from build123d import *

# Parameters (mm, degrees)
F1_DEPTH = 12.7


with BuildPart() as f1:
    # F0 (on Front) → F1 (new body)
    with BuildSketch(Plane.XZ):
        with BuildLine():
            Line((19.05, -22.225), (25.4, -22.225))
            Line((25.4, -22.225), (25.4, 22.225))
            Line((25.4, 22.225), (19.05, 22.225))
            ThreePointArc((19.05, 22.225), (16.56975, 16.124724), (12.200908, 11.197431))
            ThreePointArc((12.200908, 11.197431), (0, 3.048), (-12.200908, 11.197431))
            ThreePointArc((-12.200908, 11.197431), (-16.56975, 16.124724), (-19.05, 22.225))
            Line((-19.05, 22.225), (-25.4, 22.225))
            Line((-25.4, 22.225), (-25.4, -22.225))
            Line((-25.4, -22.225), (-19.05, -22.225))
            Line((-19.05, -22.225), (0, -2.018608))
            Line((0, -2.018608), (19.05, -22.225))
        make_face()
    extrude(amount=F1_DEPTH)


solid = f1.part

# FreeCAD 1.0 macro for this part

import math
import FreeCAD as App
import Part
import Sketcher
from FreeCAD import Vector
Q = App.Units.Quantity

doc = App.newDocument("Part")
body = doc.addObject("PartDesign::Body", "Body")

# Sketch on XZ plane
sketch1 = doc.addObject("Sketcher::SketchObject", "Sketch")
body.addObject(sketch1)
sketch1.AttachmentSupport = (doc.XZ_Plane, [""])
sketch1.MapMode = "FlatFace"
sketch1.addGeometry([
    Part.LineSegment(Vector(19.05, -22.225, 0), Vector(25.4, -22.225, 0)),  # 0
    Part.LineSegment(Vector(25.4, -22.225, 0), Vector(25.4, 22.225, 0)),  # 1
    Part.LineSegment(Vector(25.4, 22.225, 0), Vector(19.05, 22.225, 0)),  # 2
    Part.ArcOfCircle(Part.Circle(Vector(-0.000005, 26.416003, 0), Vector(0, 0, 1), 19.505569), math.radians(-51.280426), math.radians(-12.407422)),  # 3
    Part.ArcOfCircle(Part.Circle(Vector(0, 16.256001, 0), Vector(0, 0, 1), 13.208001), math.radians(-157.48081), math.radians(-22.51919)),  # 4
    Part.ArcOfCircle(Part.Circle(Vector(0.000005, 26.416003, 0), Vector(0, 0, 1), 19.505569), math.radians(-167.592578), math.radians(-128.719574)),  # 5
    Part.LineSegment(Vector(-19.05, 22.225, 0), Vector(-25.4, 22.225, 0)),  # 6
    Part.LineSegment(Vector(-25.4, 22.225, 0), Vector(-25.4, -22.225, 0)),  # 7
    Part.LineSegment(Vector(-25.4, -22.225, 0), Vector(-19.05, -22.225, 0)),  # 8
    Part.LineSegment(Vector(-19.05, -22.225, 0), Vector(0, -2.018608, 0)),  # 9
    Part.LineSegment(Vector(0, -2.018608, 0), Vector(19.05, -22.225, 0)),  # 10
], False)
sketch1.addConstraint([
    Sketcher.Constraint("Coincident", 0, 2, 1, 1),
    Sketcher.Constraint("Coincident", 1, 2, 2, 1),
    Sketcher.Constraint("Coincident", 2, 2, 3, 2),
    Sketcher.Constraint("Coincident", 3, 1, 4, 2),
    Sketcher.Constraint("Coincident", 4, 1, 5, 2),
    Sketcher.Constraint("Coincident", 5, 1, 6, 1),
    Sketcher.Constraint("Coincident", 6, 2, 7, 1),
    Sketcher.Constraint("Coincident", 7, 2, 8, 1),
    Sketcher.Constraint("Coincident", 8, 2, 9, 1),
    Sketcher.Constraint("Coincident", 9, 2, 10, 1),
    Sketcher.Constraint("Coincident", 10, 2, 0, 1),
    Sketcher.Constraint("Horizontal", 0),
    Sketcher.Constraint("Vertical", 1),
    Sketcher.Constraint("Horizontal", 2),
    Sketcher.Constraint("Horizontal", 6),
    Sketcher.Constraint("Vertical", 7),
    Sketcher.Constraint("Horizontal", 8),
    Sketcher.Constraint("Equal", 3, 5),
    Sketcher.Constraint("Symmetric", 0, 2, 6, 2, -1, 1),
    Sketcher.Constraint("Symmetric", 2, 2, 8, 2, -1, 1),
    Sketcher.Constraint("Symmetric", 3, 3, 5, 3, -2),
    Sketcher.Constraint("Symmetric", 8, 2, 10, 2, -2),
    Sketcher.Constraint("PointOnObject", 4, 3, -2),
    Sketcher.Constraint("PointOnObject", 9, 2, -2),
    Sketcher.Constraint("Radius", 4, Q("0.52 in")),
    Sketcher.Constraint("DistanceX", -1, 1, 0, 2, Q("1 in")),
    Sketcher.Constraint("DistanceX", 0, 1, 0, 2, Q("0.25 in")),
    Sketcher.Constraint("DistanceY", 1, 1, 1, 2, Q("1.75 in")),
    Sketcher.Constraint("DistanceY", 4, 3, 3, 3, Q("0.4000001 in")),
    Sketcher.Constraint("DistanceY", -1, 1, 3, 3, Q("1.0400001 in")),
    Sketcher.Constraint("Radius", 3, 19.505569),
    Sketcher.Constraint("Distance", 9, 27.770502),
])
pad1 = doc.addObject("PartDesign::Pad", "Pad")
body.addObject(pad1)
pad1.Profile = sketch1
pad1.Length = Q("0.5 in")

doc.recompute()
